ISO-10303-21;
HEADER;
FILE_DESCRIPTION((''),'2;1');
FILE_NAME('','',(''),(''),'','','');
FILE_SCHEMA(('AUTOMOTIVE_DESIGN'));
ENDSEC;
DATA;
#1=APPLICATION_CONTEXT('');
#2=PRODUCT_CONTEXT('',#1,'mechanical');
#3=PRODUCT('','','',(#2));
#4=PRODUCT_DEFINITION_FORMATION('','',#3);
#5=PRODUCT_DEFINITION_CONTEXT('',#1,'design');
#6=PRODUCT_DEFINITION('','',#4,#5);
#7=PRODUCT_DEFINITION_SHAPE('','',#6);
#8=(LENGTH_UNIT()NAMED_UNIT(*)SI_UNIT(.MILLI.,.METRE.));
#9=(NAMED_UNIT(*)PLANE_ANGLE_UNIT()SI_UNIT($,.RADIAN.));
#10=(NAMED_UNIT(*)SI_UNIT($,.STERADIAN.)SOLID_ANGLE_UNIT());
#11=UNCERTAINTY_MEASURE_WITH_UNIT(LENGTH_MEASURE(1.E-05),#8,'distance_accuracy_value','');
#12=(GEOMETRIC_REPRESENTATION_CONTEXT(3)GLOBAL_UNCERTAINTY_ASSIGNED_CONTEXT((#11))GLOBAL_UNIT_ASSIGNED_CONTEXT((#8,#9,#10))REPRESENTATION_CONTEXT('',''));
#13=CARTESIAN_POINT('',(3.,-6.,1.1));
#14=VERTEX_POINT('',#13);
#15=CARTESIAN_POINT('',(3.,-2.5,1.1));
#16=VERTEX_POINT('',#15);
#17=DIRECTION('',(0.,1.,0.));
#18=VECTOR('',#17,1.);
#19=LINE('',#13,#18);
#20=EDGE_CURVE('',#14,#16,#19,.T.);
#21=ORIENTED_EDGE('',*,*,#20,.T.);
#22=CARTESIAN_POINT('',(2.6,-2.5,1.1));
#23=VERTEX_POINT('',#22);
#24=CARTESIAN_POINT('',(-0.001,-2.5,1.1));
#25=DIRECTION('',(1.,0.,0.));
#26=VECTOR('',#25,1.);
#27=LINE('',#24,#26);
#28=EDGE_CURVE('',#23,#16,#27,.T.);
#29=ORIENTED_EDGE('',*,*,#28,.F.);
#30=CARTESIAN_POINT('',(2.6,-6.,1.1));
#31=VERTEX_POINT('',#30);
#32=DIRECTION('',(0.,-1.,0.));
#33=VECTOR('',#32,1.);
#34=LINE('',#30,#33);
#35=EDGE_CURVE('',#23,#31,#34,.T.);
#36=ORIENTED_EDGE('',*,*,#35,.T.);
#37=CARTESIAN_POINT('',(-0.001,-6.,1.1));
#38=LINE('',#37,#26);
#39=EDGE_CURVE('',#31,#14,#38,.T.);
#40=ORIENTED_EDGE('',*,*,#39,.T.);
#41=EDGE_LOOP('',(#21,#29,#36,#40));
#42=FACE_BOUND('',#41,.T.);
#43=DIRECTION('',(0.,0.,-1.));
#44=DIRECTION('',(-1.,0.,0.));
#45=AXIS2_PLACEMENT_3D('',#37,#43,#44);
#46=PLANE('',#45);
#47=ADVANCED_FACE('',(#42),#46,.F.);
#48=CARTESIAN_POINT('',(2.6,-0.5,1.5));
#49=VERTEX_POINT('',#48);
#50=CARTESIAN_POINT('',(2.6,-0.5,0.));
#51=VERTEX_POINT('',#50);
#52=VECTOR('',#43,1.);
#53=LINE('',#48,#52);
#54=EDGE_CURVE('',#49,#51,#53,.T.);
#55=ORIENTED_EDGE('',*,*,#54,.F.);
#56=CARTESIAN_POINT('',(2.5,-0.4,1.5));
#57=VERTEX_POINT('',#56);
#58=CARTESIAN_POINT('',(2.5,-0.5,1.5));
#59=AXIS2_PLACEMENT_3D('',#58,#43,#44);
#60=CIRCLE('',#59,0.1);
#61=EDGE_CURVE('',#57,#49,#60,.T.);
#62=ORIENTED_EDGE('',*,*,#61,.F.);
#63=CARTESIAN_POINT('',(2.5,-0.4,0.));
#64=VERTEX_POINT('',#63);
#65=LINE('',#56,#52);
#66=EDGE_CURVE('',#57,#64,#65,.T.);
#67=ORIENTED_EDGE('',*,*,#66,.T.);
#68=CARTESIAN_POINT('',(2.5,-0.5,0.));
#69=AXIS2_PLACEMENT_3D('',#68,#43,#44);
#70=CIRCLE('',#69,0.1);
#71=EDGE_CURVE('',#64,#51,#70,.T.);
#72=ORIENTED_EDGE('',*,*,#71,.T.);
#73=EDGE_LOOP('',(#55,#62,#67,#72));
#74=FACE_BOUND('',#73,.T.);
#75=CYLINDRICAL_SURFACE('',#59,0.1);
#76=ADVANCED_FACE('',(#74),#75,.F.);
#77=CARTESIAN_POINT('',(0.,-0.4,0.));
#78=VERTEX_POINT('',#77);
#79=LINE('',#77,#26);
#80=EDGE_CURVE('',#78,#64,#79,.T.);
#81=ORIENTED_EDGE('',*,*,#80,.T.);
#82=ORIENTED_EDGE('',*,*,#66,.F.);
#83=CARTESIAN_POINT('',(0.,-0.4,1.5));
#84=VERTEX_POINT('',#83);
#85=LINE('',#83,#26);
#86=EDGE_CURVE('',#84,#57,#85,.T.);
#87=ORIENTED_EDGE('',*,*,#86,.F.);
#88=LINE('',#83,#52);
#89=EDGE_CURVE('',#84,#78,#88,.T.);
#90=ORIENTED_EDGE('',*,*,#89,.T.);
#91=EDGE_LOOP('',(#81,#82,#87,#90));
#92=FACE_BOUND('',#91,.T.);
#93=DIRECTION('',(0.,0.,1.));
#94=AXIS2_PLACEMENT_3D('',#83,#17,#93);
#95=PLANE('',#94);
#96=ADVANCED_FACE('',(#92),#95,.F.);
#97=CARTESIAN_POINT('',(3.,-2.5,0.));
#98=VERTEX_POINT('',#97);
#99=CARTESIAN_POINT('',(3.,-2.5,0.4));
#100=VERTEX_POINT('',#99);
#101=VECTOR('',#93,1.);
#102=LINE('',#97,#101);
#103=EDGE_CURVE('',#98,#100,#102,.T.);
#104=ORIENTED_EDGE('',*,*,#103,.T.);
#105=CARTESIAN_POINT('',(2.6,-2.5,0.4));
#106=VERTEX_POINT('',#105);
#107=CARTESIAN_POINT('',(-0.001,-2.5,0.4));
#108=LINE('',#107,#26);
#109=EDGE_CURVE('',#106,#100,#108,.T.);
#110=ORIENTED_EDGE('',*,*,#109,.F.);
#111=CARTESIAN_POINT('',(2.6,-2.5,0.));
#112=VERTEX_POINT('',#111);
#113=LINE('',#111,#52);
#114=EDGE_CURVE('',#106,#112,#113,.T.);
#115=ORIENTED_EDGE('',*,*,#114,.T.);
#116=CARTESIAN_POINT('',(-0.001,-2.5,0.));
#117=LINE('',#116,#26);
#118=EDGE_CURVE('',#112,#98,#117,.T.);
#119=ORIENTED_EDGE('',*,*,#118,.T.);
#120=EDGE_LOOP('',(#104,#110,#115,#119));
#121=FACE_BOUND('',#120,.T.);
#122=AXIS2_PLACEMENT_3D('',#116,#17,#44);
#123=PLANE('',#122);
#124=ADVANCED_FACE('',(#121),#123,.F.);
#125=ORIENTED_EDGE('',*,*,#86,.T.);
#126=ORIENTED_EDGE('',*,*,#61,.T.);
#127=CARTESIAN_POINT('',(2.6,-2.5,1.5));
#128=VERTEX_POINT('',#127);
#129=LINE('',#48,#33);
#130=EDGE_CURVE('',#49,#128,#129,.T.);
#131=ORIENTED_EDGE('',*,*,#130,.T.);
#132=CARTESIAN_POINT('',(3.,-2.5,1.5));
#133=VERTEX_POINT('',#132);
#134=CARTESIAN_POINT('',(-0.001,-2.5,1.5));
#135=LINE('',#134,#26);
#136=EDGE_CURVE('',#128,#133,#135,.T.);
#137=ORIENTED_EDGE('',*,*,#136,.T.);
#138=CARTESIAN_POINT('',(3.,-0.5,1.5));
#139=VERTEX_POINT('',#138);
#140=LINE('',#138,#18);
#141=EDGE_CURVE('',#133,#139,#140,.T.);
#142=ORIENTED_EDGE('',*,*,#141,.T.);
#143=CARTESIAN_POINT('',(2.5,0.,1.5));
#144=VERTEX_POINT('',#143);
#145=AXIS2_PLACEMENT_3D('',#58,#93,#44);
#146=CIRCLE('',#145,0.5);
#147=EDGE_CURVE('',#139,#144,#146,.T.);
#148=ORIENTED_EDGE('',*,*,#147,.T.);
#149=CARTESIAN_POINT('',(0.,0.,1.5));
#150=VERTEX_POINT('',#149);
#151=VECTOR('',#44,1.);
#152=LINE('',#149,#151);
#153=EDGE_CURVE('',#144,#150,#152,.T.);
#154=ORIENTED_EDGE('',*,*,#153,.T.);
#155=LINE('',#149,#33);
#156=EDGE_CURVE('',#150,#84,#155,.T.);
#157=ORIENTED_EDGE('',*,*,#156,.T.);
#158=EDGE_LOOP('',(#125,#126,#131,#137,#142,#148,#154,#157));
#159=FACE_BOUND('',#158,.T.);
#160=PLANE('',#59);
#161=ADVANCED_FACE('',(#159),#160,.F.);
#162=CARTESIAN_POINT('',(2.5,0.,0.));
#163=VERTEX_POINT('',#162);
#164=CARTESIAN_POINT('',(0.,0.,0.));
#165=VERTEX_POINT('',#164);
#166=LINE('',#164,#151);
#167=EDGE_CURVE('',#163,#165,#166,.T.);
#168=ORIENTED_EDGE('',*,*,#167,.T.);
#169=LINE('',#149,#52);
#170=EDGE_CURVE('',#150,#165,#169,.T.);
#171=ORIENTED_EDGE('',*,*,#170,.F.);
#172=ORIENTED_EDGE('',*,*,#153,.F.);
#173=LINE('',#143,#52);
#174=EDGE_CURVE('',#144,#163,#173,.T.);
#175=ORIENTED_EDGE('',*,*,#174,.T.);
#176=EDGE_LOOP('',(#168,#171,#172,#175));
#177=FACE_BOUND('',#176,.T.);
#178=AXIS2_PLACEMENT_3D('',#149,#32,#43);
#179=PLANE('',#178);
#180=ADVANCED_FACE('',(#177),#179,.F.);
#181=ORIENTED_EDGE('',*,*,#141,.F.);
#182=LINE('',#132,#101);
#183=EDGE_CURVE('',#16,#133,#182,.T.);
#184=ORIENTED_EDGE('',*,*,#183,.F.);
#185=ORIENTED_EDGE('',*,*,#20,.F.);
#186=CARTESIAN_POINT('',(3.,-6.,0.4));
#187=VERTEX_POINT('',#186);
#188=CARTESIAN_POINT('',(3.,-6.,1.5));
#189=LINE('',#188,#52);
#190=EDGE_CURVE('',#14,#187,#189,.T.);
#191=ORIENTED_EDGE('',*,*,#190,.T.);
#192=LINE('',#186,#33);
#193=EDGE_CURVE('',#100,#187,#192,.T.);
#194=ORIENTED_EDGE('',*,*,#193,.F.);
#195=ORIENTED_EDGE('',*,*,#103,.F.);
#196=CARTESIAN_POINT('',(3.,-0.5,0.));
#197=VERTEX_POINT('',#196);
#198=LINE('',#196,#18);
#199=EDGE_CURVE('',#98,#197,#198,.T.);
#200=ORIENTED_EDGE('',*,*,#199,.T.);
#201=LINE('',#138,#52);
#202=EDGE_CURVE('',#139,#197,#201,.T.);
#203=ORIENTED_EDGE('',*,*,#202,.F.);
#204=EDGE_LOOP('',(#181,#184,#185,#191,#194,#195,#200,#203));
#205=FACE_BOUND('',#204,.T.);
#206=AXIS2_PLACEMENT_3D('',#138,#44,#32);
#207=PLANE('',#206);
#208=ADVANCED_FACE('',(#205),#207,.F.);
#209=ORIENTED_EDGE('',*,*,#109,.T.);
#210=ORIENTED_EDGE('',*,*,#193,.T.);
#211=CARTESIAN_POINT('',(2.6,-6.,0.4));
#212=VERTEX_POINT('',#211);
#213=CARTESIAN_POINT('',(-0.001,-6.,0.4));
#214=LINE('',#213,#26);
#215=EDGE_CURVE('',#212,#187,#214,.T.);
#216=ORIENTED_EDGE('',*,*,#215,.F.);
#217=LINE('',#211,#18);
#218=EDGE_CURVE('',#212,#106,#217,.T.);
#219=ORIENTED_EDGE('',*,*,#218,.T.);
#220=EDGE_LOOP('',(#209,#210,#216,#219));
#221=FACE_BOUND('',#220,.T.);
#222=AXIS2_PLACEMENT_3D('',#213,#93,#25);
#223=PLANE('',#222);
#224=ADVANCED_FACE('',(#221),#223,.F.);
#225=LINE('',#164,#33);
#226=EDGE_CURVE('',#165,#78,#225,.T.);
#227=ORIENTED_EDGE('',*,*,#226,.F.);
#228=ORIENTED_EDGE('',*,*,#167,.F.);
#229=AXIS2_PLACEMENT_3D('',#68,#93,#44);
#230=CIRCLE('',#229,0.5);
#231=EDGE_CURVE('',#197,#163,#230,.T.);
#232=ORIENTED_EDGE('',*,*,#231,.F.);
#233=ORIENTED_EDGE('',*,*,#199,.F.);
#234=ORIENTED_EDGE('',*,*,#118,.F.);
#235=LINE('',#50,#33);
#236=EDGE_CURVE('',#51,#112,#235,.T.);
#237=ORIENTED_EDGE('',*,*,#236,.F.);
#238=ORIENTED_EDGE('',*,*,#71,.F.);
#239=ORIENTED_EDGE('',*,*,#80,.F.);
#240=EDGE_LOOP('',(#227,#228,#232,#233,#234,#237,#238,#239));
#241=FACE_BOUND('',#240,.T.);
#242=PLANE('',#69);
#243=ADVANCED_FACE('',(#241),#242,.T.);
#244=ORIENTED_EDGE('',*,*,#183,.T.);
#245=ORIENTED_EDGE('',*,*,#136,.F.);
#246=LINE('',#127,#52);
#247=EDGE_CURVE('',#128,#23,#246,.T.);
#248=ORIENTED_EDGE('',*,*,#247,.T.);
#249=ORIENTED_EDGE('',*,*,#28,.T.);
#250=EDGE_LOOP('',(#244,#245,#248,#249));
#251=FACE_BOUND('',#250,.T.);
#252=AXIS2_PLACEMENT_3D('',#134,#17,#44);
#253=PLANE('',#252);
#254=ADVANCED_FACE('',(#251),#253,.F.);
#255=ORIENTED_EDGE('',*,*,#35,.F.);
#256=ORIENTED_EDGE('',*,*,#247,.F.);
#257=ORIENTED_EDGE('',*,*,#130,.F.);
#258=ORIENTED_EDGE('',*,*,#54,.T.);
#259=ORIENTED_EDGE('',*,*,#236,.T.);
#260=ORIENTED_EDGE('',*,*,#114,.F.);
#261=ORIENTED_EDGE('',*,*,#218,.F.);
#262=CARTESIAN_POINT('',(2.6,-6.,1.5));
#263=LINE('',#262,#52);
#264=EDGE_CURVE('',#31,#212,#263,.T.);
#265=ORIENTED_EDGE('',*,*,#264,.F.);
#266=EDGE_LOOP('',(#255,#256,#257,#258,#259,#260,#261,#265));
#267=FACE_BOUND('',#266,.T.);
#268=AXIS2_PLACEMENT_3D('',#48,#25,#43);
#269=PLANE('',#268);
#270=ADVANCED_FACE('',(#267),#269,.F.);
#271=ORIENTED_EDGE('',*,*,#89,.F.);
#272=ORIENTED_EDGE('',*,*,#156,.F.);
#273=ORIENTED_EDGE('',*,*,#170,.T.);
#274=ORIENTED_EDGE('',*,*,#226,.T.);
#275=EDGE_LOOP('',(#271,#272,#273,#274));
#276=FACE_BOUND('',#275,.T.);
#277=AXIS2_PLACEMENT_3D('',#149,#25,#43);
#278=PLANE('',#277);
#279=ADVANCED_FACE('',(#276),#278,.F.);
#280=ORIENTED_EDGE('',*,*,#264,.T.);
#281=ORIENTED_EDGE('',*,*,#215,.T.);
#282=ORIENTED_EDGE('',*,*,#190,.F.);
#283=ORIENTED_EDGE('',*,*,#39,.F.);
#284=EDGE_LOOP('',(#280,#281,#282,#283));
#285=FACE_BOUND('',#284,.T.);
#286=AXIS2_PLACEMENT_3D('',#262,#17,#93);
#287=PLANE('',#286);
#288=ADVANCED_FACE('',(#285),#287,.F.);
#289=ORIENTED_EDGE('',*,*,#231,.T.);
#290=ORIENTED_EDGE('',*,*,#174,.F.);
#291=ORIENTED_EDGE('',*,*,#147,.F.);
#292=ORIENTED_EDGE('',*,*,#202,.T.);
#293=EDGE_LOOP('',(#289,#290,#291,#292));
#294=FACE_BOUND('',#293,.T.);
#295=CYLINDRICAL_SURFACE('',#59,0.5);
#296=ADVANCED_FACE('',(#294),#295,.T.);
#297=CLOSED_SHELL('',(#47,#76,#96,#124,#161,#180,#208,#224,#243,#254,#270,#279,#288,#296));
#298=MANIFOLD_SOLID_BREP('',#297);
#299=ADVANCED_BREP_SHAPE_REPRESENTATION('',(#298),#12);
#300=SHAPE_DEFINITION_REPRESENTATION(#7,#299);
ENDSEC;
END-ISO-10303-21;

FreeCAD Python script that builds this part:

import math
import FreeCAD as App
import Part
import Sketcher

V = App.Vector

doc = App.newDocument("Part")
body = doc.addObject("PartDesign::Body", "Body")

# Sketch on XY plane
sketch1 = body.newObject("Sketcher::SketchObject", "Sketch")
sketch1.AttachmentSupport = (doc.getObject("XY_Plane"), [""])
sketch1.MapMode = "FlatFace"
sketch1.addGeometry(Part.LineSegment(V(2.5, 0, 0), V(0, 0, 0)), False)
sketch1.addGeometry(Part.LineSegment(V(0, 0, 0), V(0, -0.4, 0)), False)
sketch1.addGeometry(Part.LineSegment(V(0, -0.4, 0), V(2.5, -0.4, 0)), False)
sketch1.addGeometry(Part.ArcOfCircle(Part.Circle(V(2.5, -0.5, 0), V(0, 0, 1), 0.1), math.radians(0), math.radians(90)), False)
sketch1.addGeometry(Part.LineSegment(V(2.6, -0.5, 0), V(2.6, -6, 0)), False)
sketch1.addGeometry(Part.LineSegment(V(2.6, -6, 0), V(3, -6, 0)), False)
sketch1.addGeometry(Part.LineSegment(V(3, -6, 0), V(3, -0.5, 0)), False)
sketch1.addGeometry(Part.ArcOfCircle(Part.Circle(V(2.5, -0.5, 0), V(0, 0, 1), 0.5), math.radians(0), math.radians(90)), False)
sketch1.addConstraint(Sketcher.Constraint("Coincident", 0, 2, 1, 1))
sketch1.addConstraint(Sketcher.Constraint("Coincident", 1, 2, 2, 1))
sketch1.addConstraint(Sketcher.Constraint("Tangent", 2, 2, 3, 2))
sketch1.addConstraint(Sketcher.Constraint("Tangent", 3, 1, 4, 1))
sketch1.addConstraint(Sketcher.Constraint("Coincident", 4, 2, 5, 1))
sketch1.addConstraint(Sketcher.Constraint("Coincident", 5, 2, 6, 1))
sketch1.addConstraint(Sketcher.Constraint("Tangent", 6, 2, 7, 1))
sketch1.addConstraint(Sketcher.Constraint("Tangent", 7, 2, 0, 1))
sketch1.addConstraint(Sketcher.Constraint("Horizontal", 0))
sketch1.addConstraint(Sketcher.Constraint("Vertical", 1))
sketch1.addConstraint(Sketcher.Constraint("Horizontal", 2))
sketch1.addConstraint(Sketcher.Constraint("Vertical", 4))
sketch1.addConstraint(Sketcher.Constraint("Horizontal", 5))
sketch1.addConstraint(Sketcher.Constraint("Vertical", 6))
sketch1.addConstraint(Sketcher.Constraint("Coincident", 0, 2, -1, 1))
sketch1.addConstraint(Sketcher.Constraint("Coincident", 7, 3, 3, 3))
sketch1.addConstraint(Sketcher.Constraint("Radius", 3, 0.1))
sketch1.addConstraint(Sketcher.Constraint("Radius", 7, 0.5))
sketch1.addConstraint(Sketcher.Constraint("DistanceX", 0, 2, 0, 1, 2.5))
sketch1.addConstraint(Sketcher.Constraint("DistanceY", 4, 2, 4, 1, 5.5))
pad1 = body.newObject("PartDesign::Pad", "Pad")
pad1.Profile = sketch1
pad1.Length = 1.5

# Sketch on YZ plane
sketch2 = body.newObject("Sketcher::SketchObject", "Sketch001")
sketch2.AttachmentSupport = (doc.getObject("YZ_Plane"), [""])
sketch2.MapMode = "FlatFace"
sketch2.AttachmentOffset = App.Placement(V(0, 0, 3), App.Rotation())
sketch2.addGeometry(Part.LineSegment(V(-2.5, 0.4, 0), V(-6, 0.4, 0)), False)
sketch2.addGeometry(Part.LineSegment(V(-6, 0.4, 0), V(-6, 0, 0)), False)
sketch2.addGeometry(Part.LineSegment(V(-6, 0, 0), V(-2.5, 0, 0)), False)
sketch2.addGeometry(Part.LineSegment(V(-2.5, 0, 0), V(-2.5, 0.4, 0)), False)
sketch2.addConstraint(Sketcher.Constraint("Coincident", 0, 2, 1, 1))
sketch2.addConstraint(Sketcher.Constraint("Coincident", 1, 2, 2, 1))
sketch2.addConstraint(Sketcher.Constraint("Coincident", 2, 2, 3, 1))
sketch2.addConstraint(Sketcher.Constraint("Coincident", 3, 2, 0, 1))
sketch2.addConstraint(Sketcher.Constraint("Horizontal", 0))
sketch2.addConstraint(Sketcher.Constraint("Vertical", 1))
sketch2.addConstraint(Sketcher.Constraint("Horizontal", 2))
sketch2.addConstraint(Sketcher.Constraint("Vertical", 3))
sketch2.addConstraint(Sketcher.Constraint("PointOnObject", 1, 2, -1))
sketch2.addConstraint(Sketcher.Constraint("DistanceX", 0, 2, 0, 1, 3.5))
sketch2.addConstraint(Sketcher.Constraint("DistanceY", 1, 2, 1, 1, 0.4))
sketch2.addConstraint(Sketcher.Constraint("DistanceX", 0, 2, -1, 1, 6.0))
pocket1 = body.newObject("PartDesign::Pocket", "Pocket")
pocket1.Profile = sketch2
pocket1.Type = "UpToFirst"

# Sketch on YZ plane
sketch3 = body.newObject("Sketcher::SketchObject", "Sketch002")
sketch3.AttachmentSupport = (doc.getObject("YZ_Plane"), [""])
sketch3.MapMode = "FlatFace"
sketch3.AttachmentOffset = App.Placement(V(0, 0, 3), App.Rotation())
sketch3.addGeometry(Part.LineSegment(V(-2.5, 1.5, 0), V(-6, 1.5, 0)), False)
sketch3.addGeometry(Part.LineSegment(V(-6, 1.5, 0), V(-6, 1.1, 0)), False)
sketch3.addGeometry(Part.LineSegment(V(-6, 1.1, 0), V(-2.5, 1.1, 0)), False)
sketch3.addGeometry(Part.LineSegment(V(-2.5, 1.1, 0), V(-2.5, 1.5, 0)), False)
sketch3.addConstraint(Sketcher.Constraint("Coincident", 0, 2, 1, 1))
sketch3.addConstraint(Sketcher.Constraint("Coincident", 1, 2, 2, 1))
sketch3.addConstraint(Sketcher.Constraint("Coincident", 2, 2, 3, 1))
sketch3.addConstraint(Sketcher.Constraint("Coincident", 3, 2, 0, 1))
sketch3.addConstraint(Sketcher.Constraint("Horizontal", 0))
sketch3.addConstraint(Sketcher.Constraint("Vertical", 1))
sketch3.addConstraint(Sketcher.Constraint("Horizontal", 2))
sketch3.addConstraint(Sketcher.Constraint("Vertical", 3))
sketch3.addConstraint(Sketcher.Constraint("DistanceX", 0, 2, 0, 1, 3.5))
sketch3.addConstraint(Sketcher.Constraint("DistanceY", 1, 2, 1, 1, 0.4))
sketch3.addConstraint(Sketcher.Constraint("DistanceX", 0, 2, -1, 1, 6.0))
sketch3.addConstraint(Sketcher.Constraint("DistanceY", -1, 1, 0, 2, 1.5))
pocket2 = body.newObject("PartDesign::Pocket", "Pocket001")
pocket2.Profile = sketch3
pocket2.Type = "UpToFirst"

doc.recompute()
